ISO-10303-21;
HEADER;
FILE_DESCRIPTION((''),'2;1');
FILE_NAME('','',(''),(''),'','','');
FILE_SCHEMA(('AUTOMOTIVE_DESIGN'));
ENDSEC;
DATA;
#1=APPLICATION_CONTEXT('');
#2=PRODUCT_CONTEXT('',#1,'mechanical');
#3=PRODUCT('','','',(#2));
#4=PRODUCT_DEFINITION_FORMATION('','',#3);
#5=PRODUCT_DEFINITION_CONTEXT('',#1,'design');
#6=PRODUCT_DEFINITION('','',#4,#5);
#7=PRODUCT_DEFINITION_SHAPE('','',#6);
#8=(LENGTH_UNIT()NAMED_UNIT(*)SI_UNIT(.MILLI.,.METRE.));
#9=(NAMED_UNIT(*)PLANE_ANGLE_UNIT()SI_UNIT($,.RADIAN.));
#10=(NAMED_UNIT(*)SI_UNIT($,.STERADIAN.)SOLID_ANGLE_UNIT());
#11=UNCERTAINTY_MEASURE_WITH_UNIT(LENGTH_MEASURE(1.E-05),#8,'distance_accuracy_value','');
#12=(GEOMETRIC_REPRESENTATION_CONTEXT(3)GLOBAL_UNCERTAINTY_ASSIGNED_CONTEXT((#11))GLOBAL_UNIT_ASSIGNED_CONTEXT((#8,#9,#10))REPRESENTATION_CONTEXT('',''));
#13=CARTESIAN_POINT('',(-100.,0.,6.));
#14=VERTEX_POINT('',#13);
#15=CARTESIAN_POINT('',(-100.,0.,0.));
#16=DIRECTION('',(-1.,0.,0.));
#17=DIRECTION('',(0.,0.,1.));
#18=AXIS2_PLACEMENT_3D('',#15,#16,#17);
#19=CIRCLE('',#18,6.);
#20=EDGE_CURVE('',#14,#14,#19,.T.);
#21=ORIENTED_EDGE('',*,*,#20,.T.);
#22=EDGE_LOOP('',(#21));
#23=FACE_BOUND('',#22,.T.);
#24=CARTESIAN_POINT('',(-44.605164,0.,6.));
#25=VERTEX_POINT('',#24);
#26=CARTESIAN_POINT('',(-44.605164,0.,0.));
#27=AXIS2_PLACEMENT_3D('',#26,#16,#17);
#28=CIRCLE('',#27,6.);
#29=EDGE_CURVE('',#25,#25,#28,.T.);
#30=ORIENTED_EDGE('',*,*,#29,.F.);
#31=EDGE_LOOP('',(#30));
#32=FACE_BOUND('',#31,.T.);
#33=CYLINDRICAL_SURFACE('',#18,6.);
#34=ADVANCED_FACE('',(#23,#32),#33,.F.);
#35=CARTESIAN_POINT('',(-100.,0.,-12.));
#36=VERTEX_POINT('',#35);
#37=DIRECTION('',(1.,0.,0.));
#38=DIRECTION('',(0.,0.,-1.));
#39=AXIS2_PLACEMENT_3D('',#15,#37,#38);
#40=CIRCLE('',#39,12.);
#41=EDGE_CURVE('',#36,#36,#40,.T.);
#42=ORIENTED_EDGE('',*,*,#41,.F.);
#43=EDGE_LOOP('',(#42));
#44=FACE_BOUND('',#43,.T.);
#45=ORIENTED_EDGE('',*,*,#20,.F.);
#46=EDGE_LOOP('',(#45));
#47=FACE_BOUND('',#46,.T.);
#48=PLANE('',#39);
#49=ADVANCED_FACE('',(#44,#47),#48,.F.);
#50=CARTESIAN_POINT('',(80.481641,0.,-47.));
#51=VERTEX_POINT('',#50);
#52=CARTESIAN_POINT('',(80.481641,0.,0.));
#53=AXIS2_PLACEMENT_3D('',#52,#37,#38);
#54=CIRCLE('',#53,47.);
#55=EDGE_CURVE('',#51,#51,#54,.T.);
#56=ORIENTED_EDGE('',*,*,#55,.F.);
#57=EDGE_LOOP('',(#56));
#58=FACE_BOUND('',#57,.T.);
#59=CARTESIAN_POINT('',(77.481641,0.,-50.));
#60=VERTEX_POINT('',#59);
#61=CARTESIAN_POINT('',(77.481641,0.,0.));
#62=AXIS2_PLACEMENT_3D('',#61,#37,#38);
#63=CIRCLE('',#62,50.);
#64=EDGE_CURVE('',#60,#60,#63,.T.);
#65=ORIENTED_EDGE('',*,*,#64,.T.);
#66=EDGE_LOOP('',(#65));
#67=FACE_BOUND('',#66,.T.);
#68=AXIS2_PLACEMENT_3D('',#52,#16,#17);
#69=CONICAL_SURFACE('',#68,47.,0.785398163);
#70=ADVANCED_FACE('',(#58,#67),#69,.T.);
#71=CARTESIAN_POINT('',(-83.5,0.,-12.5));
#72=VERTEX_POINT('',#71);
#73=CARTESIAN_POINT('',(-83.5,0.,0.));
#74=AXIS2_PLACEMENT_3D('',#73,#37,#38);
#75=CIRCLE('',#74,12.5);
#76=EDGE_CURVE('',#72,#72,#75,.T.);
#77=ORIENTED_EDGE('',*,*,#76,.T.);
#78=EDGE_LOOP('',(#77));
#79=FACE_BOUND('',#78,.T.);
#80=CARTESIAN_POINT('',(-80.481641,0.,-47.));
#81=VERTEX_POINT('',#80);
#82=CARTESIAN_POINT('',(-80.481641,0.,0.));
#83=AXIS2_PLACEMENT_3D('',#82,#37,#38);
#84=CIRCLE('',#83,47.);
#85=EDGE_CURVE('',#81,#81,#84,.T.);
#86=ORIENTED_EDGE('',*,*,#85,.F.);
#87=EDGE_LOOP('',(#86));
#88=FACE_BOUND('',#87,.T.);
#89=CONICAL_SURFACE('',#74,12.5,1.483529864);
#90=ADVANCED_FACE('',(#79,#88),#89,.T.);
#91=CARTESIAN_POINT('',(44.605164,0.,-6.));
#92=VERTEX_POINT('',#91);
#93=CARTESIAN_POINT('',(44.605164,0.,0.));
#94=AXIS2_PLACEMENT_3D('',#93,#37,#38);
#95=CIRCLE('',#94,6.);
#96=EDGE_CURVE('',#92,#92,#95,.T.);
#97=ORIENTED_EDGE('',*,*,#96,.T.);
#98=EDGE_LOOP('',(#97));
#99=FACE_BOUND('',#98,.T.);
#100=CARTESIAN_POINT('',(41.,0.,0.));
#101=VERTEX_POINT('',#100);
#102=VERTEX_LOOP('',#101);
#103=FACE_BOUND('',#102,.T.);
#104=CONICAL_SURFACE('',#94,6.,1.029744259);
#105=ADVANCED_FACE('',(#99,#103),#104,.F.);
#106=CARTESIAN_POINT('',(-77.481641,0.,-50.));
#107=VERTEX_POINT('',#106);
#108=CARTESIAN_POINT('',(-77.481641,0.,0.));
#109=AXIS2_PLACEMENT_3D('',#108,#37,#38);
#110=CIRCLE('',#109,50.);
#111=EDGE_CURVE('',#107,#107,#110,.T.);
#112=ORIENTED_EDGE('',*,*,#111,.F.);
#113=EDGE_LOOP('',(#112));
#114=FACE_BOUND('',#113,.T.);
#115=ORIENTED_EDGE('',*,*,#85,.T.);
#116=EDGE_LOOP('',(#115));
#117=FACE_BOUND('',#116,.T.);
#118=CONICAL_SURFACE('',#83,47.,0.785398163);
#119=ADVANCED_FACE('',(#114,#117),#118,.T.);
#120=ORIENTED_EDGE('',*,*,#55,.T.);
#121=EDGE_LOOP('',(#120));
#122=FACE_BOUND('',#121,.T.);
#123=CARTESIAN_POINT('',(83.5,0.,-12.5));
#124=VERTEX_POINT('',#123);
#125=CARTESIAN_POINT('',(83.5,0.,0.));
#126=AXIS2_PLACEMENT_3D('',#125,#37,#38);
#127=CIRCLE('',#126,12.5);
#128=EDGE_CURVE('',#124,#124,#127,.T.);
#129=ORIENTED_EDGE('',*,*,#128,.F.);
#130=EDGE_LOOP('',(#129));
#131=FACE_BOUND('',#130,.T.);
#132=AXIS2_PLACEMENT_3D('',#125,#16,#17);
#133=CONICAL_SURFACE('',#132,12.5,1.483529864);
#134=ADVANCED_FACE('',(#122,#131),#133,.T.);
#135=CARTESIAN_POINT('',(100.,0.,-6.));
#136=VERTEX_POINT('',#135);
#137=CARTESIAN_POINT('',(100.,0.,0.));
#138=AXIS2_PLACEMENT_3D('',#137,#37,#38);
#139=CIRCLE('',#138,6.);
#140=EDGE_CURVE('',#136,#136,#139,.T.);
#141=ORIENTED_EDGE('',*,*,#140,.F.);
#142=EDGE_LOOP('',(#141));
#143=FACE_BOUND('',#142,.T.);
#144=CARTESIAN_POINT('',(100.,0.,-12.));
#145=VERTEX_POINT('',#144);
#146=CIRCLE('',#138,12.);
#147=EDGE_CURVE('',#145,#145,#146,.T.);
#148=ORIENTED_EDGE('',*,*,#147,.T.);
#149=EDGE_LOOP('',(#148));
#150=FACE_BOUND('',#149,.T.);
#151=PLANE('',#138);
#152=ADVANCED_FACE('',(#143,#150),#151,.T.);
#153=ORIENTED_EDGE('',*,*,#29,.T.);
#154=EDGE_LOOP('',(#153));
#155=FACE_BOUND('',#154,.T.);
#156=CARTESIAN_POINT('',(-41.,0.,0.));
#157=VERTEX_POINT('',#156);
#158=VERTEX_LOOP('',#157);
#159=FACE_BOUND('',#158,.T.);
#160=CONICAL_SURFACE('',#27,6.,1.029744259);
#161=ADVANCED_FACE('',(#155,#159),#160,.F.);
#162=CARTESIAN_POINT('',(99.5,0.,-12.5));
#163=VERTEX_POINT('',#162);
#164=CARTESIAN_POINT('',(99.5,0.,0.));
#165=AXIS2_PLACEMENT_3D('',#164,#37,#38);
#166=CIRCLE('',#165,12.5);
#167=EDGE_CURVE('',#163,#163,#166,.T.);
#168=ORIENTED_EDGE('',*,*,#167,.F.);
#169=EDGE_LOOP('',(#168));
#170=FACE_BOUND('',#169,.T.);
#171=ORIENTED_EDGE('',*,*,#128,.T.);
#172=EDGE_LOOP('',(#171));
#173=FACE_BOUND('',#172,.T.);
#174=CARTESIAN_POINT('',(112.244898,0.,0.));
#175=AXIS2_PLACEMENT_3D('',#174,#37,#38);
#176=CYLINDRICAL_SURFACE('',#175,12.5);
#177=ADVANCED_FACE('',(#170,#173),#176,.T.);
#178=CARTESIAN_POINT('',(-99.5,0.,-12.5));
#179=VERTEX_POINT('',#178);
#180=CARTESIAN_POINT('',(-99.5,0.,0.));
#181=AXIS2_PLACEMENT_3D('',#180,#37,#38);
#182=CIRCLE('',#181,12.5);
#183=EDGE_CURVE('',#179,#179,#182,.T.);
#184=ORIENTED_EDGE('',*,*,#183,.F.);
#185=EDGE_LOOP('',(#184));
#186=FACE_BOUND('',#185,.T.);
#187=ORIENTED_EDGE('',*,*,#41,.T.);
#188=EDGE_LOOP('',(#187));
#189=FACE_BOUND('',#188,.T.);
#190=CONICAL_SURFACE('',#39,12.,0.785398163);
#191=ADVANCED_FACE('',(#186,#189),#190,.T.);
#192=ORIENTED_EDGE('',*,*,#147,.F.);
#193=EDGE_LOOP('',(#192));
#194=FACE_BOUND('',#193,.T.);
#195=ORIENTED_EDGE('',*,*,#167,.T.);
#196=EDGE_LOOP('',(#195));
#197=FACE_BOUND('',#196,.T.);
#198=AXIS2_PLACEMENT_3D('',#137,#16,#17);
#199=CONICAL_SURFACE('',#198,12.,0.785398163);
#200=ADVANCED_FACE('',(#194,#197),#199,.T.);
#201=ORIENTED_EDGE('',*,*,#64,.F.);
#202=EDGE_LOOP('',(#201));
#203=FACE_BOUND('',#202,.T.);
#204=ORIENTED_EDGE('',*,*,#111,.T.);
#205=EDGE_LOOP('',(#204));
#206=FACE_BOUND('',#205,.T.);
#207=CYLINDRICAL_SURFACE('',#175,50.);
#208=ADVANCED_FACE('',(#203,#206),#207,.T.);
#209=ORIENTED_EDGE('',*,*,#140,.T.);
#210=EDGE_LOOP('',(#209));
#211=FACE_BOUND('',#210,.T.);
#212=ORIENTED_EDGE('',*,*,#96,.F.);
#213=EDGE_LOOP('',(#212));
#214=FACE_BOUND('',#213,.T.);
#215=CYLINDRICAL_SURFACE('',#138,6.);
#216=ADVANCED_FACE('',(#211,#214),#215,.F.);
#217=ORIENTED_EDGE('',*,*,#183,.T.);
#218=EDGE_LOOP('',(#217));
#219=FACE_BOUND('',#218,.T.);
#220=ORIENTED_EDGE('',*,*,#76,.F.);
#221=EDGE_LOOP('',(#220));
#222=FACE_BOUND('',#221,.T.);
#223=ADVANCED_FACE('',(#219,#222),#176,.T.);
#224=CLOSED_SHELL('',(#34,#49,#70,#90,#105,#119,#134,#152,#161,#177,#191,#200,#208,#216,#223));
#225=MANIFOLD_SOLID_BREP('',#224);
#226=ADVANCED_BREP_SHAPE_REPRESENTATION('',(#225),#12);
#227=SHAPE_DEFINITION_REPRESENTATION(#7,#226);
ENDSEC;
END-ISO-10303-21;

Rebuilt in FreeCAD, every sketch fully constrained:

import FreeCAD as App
import Part
import Sketcher

V = App.Vector
Q = App.Units.Quantity


def add_polygon(sketch, points):
    """Adds a closed chain of lines whose ends are joined by coincident constraints."""
    first, n = sketch.GeometryCount, len(points)
    for a, b in zip(points, points[1:] + points[:1]):
        sketch.addGeometry(Part.LineSegment(App.Vector(*a, 0), App.Vector(*b, 0)), False)
    for i in range(n):
        sketch.addConstraint(Sketcher.Constraint("Coincident", first + i, 2, first + (i + 1) % n, 1))

doc = App.newDocument("Part")
params = doc.addObject("Spreadsheet::Sheet", "Params")
for row, (alias, value) in enumerate([
    ("sketch1_width", "16 mm"),
    ("sketch1_width2", "200 mm"),
    ("sketch1_height", "12 mm"),
    ("revolution_angle", "360 deg"),
    ("sketch2_width", "59 mm"),
    ("sketch2_height", "6 mm"),
    ("groove_angle", "360 deg"),
    ("sketch3_diameter", "12 mm"),
    ("hole_diameter", "12 mm"),
    ("hole_depth", "55.394836 mm"),
], start=1):
    params.set(f"A{row}", alias)
    params.set(f"B{row}", "=" + value)
    params.setAlias(f"B{row}", alias)

body = doc.addObject("PartDesign::Body", "Body")

# Sketch on XY plane
sketch1 = doc.addObject("Sketcher::SketchObject", "Sketch")
body.addObject(sketch1)
sketch1.AttachmentSupport = (doc.XY_Plane, [""])
sketch1.MapMode = "FlatFace"
add_polygon(sketch1, [(100, 0), (100, 12), (99.5, 12.5), (83.5, 12.5), (80.5, 47), (77.5, 50), (-77.5, 50), (-80.5, 47), (-83.5, 12.5), (-99.5, 12.5), (-100, 12), (-100, 0)])  # lines 0-11
sketch1.addConstraint(Sketcher.Constraint("Vertical", 0))
sketch1.addConstraint(Sketcher.Constraint("Horizontal", 2))
sketch1.addConstraint(Sketcher.Constraint("Horizontal", 5))
sketch1.addConstraint(Sketcher.Constraint("Horizontal", 8))
sketch1.addConstraint(Sketcher.Constraint("Vertical", 10))
sketch1.addConstraint(Sketcher.Constraint("Horizontal", 11))
sketch1.addConstraint(Sketcher.Constraint("Symmetric", 10, 2, 11, 2, -1, 1))
sketch1.addConstraint(Sketcher.Constraint("Symmetric", 3, 2, 6, 2, -2))
sketch1.addConstraint(Sketcher.Constraint("Symmetric", 2, 2, 7, 2, -2))
sketch1.addConstraint(Sketcher.Constraint("Parallel", 1, 4))
sketch1.addConstraint(Sketcher.Constraint("Perpendicular", 4, 6))
sketch1.addConstraint(Sketcher.Constraint("Parallel", 6, 9))
sketch1.addConstraint(Sketcher.Constraint("Horizontal", 0, 2, 9, 2))
sketch1.addConstraint(Sketcher.Constraint("Equal", 2, 8))
sketch1.addConstraint(Sketcher.Constraint("DistanceX", 2, 2, 2, 1, 16.0))
sketch1.addConstraint(Sketcher.Constraint("DistanceX", 11, 1, 11, 2, 200.0))
sketch1.addConstraint(Sketcher.Constraint("DistanceY", 0, 1, 0, 2, 12.0))
sketch1.addConstraint(Sketcher.Constraint("Angle", 3, Q("95 deg")))
sketch1.addConstraint(Sketcher.Constraint("DistanceY", -1, 1, 3, 2, 47.0))
sketch1.addConstraint(Sketcher.Constraint("DistanceY", -1, 1, 4, 2, 50.0))
sketch1.addConstraint(Sketcher.Constraint("DistanceX", 7, 2, 2, 2, 167.0))
sketch1.setExpression("Constraints[26]", "Params.sketch1_width")
sketch1.setExpression("Constraints[27]", "Params.sketch1_width2")
sketch1.setExpression("Constraints[28]", "Params.sketch1_height")
revolution = doc.addObject("PartDesign::Revolution", "Revolution")
body.addObject(revolution)
revolution.Profile = sketch1
revolution.ReferenceAxis = (sketch1, ["H_Axis"])
revolution.setExpression("Angle", "Params.revolution_angle")

# Sketch on XZ plane
sketch2 = doc.addObject("Sketcher::SketchObject", "Sketch001")
body.addObject(sketch2)
sketch2.AttachmentSupport = (doc.XZ_Plane, [""])
sketch2.MapMode = "FlatFace"
add_polygon(sketch2, [(-41, 0), (-100, 0), (-100, 6), (-45, 6)])  # lines 0-3
sketch2.addConstraint(Sketcher.Constraint("Horizontal", 0))
sketch2.addConstraint(Sketcher.Constraint("Vertical", 1))
sketch2.addConstraint(Sketcher.Constraint("Horizontal", 2))
sketch2.addConstraint(Sketcher.Constraint("PointOnObject", 0, 2, -1))
sketch2.addConstraint(Sketcher.Constraint("DistanceX", 0, 2, 0, 1, 59.0))
sketch2.addConstraint(Sketcher.Constraint("DistanceY", 1, 1, 1, 2, 6.0))
sketch2.addConstraint(Sketcher.Constraint("Angle", 3, Q("-59 deg")))
sketch2.addConstraint(Sketcher.Constraint("DistanceX", 0, 2, -1, 1, 100.0))
sketch2.setExpression("Constraints[8]", "Params.sketch2_width")
sketch2.setExpression("Constraints[9]", "Params.sketch2_height")
groove = doc.addObject("PartDesign::Groove", "Groove")
body.addObject(groove)
groove.Profile = sketch2
groove.ReferenceAxis = (sketch2, ["H_Axis"])
groove.setExpression("Angle", "Params.groove_angle")

# Sketch on YZ plane
sketch3 = doc.addObject("Sketcher::SketchObject", "Sketch002")
body.addObject(sketch3)
sketch3.AttachmentSupport = (doc.YZ_Plane, [""])
sketch3.MapMode = "FlatFace"
sketch3.AttachmentOffset = App.Placement(V(0, 0, 100), App.Rotation())
sketch3.addGeometry(Part.Circle(V(0, 0, 0), V(0, 0, 1), 6), False)
sketch3.addConstraint(Sketcher.Constraint("Coincident", 0, 3, -1, 1))
sketch3.addConstraint(Sketcher.Constraint("Diameter", 0, 12.0))
sketch3.setExpression("Constraints[1]", "Params.sketch3_diameter")
doc.recompute()
hole = doc.addObject("PartDesign::Hole", "Hole")
body.addObject(hole)
hole.Profile = sketch3
hole.ThreadType = "None"
hole.setExpression("Diameter", "Params.hole_diameter")
hole.DepthType = "Dimension"
hole.setExpression("Depth", "Params.hole_depth")
hole.DrillPoint = "Angled"
hole.DrillPointAngle = 118

doc.recompute()
